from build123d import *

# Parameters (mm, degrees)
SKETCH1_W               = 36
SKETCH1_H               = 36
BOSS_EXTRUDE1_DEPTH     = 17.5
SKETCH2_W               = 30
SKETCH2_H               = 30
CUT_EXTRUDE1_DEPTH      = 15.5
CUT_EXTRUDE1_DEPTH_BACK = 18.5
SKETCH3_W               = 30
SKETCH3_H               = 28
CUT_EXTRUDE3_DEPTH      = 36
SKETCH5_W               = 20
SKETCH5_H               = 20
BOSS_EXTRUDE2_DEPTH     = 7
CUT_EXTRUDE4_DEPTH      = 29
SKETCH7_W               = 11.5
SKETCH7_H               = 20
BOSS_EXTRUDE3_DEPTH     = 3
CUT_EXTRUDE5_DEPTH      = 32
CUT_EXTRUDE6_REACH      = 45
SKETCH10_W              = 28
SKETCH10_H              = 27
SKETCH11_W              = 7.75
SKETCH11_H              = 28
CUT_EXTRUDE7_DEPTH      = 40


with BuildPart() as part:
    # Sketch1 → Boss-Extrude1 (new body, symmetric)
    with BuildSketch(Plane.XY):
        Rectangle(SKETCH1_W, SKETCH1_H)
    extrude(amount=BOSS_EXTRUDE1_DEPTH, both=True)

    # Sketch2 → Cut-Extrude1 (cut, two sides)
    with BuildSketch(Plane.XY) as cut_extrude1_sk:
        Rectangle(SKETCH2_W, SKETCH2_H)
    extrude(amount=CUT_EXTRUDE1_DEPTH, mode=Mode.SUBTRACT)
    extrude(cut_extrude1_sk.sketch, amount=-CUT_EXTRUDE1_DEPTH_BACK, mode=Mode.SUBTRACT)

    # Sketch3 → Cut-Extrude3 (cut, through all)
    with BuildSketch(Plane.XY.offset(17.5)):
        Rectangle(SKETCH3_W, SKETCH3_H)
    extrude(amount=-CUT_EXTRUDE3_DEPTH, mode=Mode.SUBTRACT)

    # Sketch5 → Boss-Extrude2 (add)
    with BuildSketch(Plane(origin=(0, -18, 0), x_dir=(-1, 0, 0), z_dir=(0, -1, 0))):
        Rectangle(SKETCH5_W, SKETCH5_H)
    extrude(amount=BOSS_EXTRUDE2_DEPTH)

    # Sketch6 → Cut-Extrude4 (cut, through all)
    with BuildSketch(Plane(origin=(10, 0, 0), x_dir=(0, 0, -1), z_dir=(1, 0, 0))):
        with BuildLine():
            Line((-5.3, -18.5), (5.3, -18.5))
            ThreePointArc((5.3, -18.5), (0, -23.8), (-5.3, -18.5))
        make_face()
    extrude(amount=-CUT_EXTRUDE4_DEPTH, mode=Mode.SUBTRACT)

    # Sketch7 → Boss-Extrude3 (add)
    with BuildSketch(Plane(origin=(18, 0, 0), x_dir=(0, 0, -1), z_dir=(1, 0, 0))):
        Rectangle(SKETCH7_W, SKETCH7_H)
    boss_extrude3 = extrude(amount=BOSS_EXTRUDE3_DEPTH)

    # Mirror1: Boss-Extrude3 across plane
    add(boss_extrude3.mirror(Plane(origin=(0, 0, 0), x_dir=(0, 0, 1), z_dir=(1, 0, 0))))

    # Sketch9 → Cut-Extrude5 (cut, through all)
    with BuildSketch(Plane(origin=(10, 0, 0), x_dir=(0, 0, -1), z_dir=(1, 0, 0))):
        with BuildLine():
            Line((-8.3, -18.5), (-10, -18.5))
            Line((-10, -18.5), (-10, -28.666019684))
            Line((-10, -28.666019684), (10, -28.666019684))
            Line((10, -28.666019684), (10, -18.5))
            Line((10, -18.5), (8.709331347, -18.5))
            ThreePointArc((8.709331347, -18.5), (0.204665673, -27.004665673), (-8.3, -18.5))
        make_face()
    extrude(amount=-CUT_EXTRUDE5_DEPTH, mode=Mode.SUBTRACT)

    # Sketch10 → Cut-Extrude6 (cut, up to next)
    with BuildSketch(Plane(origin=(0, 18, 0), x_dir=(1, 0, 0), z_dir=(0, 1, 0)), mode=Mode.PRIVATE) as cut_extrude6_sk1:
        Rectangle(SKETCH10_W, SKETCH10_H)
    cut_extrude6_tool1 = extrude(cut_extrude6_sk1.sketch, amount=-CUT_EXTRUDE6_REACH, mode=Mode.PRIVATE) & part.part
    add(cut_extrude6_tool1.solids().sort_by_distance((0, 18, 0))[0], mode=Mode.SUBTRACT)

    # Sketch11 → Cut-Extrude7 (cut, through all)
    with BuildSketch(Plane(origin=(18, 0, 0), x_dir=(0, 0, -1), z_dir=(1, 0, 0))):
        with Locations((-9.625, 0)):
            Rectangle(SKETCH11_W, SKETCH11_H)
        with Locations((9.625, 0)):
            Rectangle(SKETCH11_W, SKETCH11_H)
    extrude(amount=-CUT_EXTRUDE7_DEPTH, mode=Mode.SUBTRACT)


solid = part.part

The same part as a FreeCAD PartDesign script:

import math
import FreeCAD as App
import Part
import Sketcher


def add_polygon(sketch, points):
    """Adds a closed chain of lines whose ends are joined by coincident constraints."""
    first, n = sketch.GeometryCount, len(points)
    for a, b in zip(points, points[1:] + points[:1]):
        sketch.addGeometry(Part.LineSegment(App.Vector(*a, 0), App.Vector(*b, 0)), False)
    for i in range(n):
        sketch.addConstraint(Sketcher.Constraint("Coincident", first + i, 2, first + (i + 1) % n, 1))

doc = App.newDocument("Part")
body = doc.addObject("PartDesign::Body", "Body")

# Sketch on XY plane
sketch1 = body.newObject("Sketcher::SketchObject", "Sketch")
sketch1.AttachmentSupport = (doc.getObject("XY_Plane"), [""])
sketch1.MapMode = "FlatFace"
add_polygon(sketch1, [(-18, 18), (-18, -18), (18, -18), (18, 18)])  # lines 0-3
sketch1.addConstraint([
    Sketcher.Constraint("Vertical", 0),
    Sketcher.Constraint("Horizontal", 1),
    Sketcher.Constraint("Vertical", 2),
    Sketcher.Constraint("Horizontal", 3),
    Sketcher.Constraint("Symmetric", 0, 2, 2, 2, -1, 1),
    Sketcher.Constraint("Equal", 3, 0),
    Sketcher.Constraint("DistanceX", 1, 1, 1, 2, 36.0),
])
pad1 = body.newObject("PartDesign::Pad", "Pad")
pad1.Profile = sketch1
pad1.Length = 35
pad1.Midplane = True

# Sketch on XY plane
sketch2 = body.newObject("Sketcher::SketchObject", "Sketch001")
sketch2.AttachmentSupport = (doc.getObject("XY_Plane"), [""])
sketch2.MapMode = "FlatFace"
add_polygon(sketch2, [(-15, 15), (-15, -15), (15, -15), (15, 15)])  # lines 0-3
sketch2.addConstraint([
    Sketcher.Constraint("Vertical", 0),
    Sketcher.Constraint("Horizontal", 1),
    Sketcher.Constraint("Vertical", 2),
    Sketcher.Constraint("Horizontal", 3),
    Sketcher.Constraint("Symmetric", 0, 2, 2, 2, -1, 1),
    Sketcher.Constraint("Equal", 3, 0),
    Sketcher.Constraint("DistanceX", 1, 1, 1, 2, 30.0),
])
pocket1 = body.newObject("PartDesign::Pocket", "Pocket")
pocket1.Profile = sketch2
pocket1.Type = "TwoLengths"
pocket1.Length = 15.5
pocket1.Length2 = 18.5
pocket1.Reversed = True

# Sketch on XY plane
sketch3 = body.newObject("Sketcher::SketchObject", "Sketch002")
sketch3.AttachmentSupport = (doc.getObject("XY_Plane"), [""])
sketch3.MapMode = "FlatFace"
sketch3.AttachmentOffset = App.Placement(App.Vector(0, 0, 17.5), App.Rotation())
add_polygon(sketch3, [(-15, 14), (-15, -14), (15, -14), (15, 14)])  # lines 0-3
sketch3.addConstraint([
    Sketcher.Constraint("Vertical", 0),
    Sketcher.Constraint("Horizontal", 1),
    Sketcher.Constraint("Vertical", 2),
    Sketcher.Constraint("Horizontal", 3),
    Sketcher.Constraint("Symmetric", 0, 2, 2, 2, -1, 1),
    Sketcher.Constraint("DistanceX", 1, 1, 1, 2, 30.0),
    Sketcher.Constraint("DistanceY", 0, 2, 0, 1, 28.0),
])
pocket2 = body.newObject("PartDesign::Pocket", "Pocket001")
pocket2.Profile = sketch3
pocket2.Type = "ThroughAll"

# Sketch on XZ plane
sketch4 = body.newObject("Sketcher::SketchObject", "Sketch003")
sketch4.AttachmentSupport = (doc.getObject("XZ_Plane"), [""])
sketch4.MapMode = "FlatFace"
sketch4.AttachmentOffset = App.Placement(App.Vector(0, 0, 18), App.Rotation())
add_polygon(sketch4, [(10, -10), (10, 10), (-10, 10), (-10, -10)])  # lines 0-3
sketch4.addConstraint([
    Sketcher.Constraint("Vertical", 0),
    Sketcher.Constraint("Horizontal", 1),
    Sketcher.Constraint("Vertical", 2),
    Sketcher.Constraint("Horizontal", 3),
    Sketcher.Constraint("Symmetric", 0, 2, 2, 2, -1, 1),
    Sketcher.Constraint("Equal", 3, 0),
    Sketcher.Constraint("DistanceX", 1, 2, 1, 1, 20.0),
])
pad2 = body.newObject("PartDesign::Pad", "Pad001")
pad2.Profile = sketch4
pad2.Length = 7

# Sketch on YZ plane
sketch5 = body.newObject("Sketcher::SketchObject", "Sketch004")
sketch5.AttachmentSupport = (doc.getObject("YZ_Plane"), [""])
sketch5.MapMode = "FlatFace"
sketch5.AttachmentOffset = App.Placement(App.Vector(0, 0, 10), App.Rotation())
sketch5.addGeometry([
    Part.LineSegment(App.Vector(-18, -5, 0), App.Vector(-18, 5, 0)),
    Part.ArcOfCircle(Part.Circle(App.Vector(-18, 0, 0), App.Vector(0, 0, 1), 5), math.radians(90), math.radians(270)),
], False)
sketch5.addConstraint([
    Sketcher.Constraint("Coincident", 0, 1, 1, 2),
    Sketcher.Constraint("Coincident", 1, 1, 0, 2),
    Sketcher.Constraint("Vertical", 0),
    Sketcher.Constraint("PointOnObject", 1, 3, -1),
    Sketcher.Constraint("Vertical", 1, 3, 0, 1),
    Sketcher.Constraint("Radius", 1, 5.3),
    Sketcher.Constraint("DistanceX", 1, 3, -1, 1, 18.5),
])
pocket3 = body.newObject("PartDesign::Pocket", "Pocket002")
pocket3.Profile = sketch5
pocket3.Type = "ThroughAll"

# Sketch on YZ plane
sketch6 = body.newObject("Sketcher::SketchObject", "Sketch005")
sketch6.AttachmentSupport = (doc.getObject("YZ_Plane"), [""])
sketch6.MapMode = "FlatFace"
sketch6.AttachmentOffset = App.Placement(App.Vector(0, 0, 18), App.Rotation())
add_polygon(sketch6, [(10, 6), (-10, 6), (-10, -6), (10, -6)])  # lines 0-3
sketch6.addConstraint([
    Sketcher.Constraint("Horizontal", 0),
    Sketcher.Constraint("Vertical", 1),
    Sketcher.Constraint("Horizontal", 2),
    Sketcher.Constraint("Vertical", 3),
    Sketcher.Constraint("Symmetric", 0, 2, 2, 2, -1, 1),
    Sketcher.Constraint("DistanceX", 0, 2, 0, 1, 20.0),
    Sketcher.Constraint("DistanceY", 1, 2, 1, 1, 11.5),
])
pad3 = body.newObject("PartDesign::Pad", "Pad002")
pad3.Profile = sketch6
pad3.Length = 3
doc.recompute()

mirrored = body.newObject("PartDesign::Mirrored", "Mirrored")
mirrored.Originals = [pad3]
mirrored.MirrorPlane = (doc.getObject("YZ_Plane"), [""])
body.Tip = mirrored

# Sketch on YZ plane
sketch7 = body.newObject("Sketcher::SketchObject", "Sketch006")
sketch7.AttachmentSupport = (doc.getObject("YZ_Plane"), [""])
sketch7.MapMode = "FlatFace"
sketch7.AttachmentOffset = App.Placement(App.Vector(0, 0, 10), App.Rotation())
sketch7.addGeometry([
    Part.LineSegment(App.Vector(-18.5, 8.3, 0), App.Vector(-18.5, 10, 0)),  # 0
    Part.LineSegment(App.Vector(-18.5, 10, 0), App.Vector(-28.7, 10, 0)),  # 1
    Part.LineSegment(App.Vector(-28.7, 10, 0), App.Vector(-28.7, -10, 0)),  # 2
    Part.LineSegment(App.Vector(-28.7, -10, 0), App.Vector(-18.5, -10, 0)),  # 3
    Part.LineSegment(App.Vector(-18.5, -10, 0), App.Vector(-18.5, -8.7, 0)),  # 4
    Part.ArcOfCircle(Part.Circle(App.Vector(-18.5, -0.2, 0), App.Vector(0, 0, 1), 8.5), math.radians(90), math.radians(270)),  # 5
], False)
sketch7.addConstraint([
    Sketcher.Constraint("Coincident", 0, 2, 1, 1),
    Sketcher.Constraint("Coincident", 1, 2, 2, 1),
    Sketcher.Constraint("Coincident", 2, 2, 3, 1),
    Sketcher.Constraint("Coincident", 3, 2, 4, 1),
    Sketcher.Constraint("Coincident", 4, 2, 5, 2),
    Sketcher.Constraint("Coincident", 5, 1, 0, 1),
    Sketcher.Constraint("Vertical", 0),
    Sketcher.Constraint("Horizontal", 1),
    Sketcher.Constraint("Vertical", 2),
    Sketcher.Constraint("Horizontal", 3),
    Sketcher.Constraint("Vertical", 4),
    Sketcher.Constraint("Symmetric", 0, 2, 3, 2, -1),
    Sketcher.Constraint("Vertical", 5, 3, 0, 2),
    Sketcher.Constraint("DistanceY", 2, 2, 2, 1, 20.0),
    Sketcher.Constraint("DistanceY", 0, 1, 0, 2, 1.7),
    Sketcher.Constraint("DistanceX", 5, 3, -1, 1, 18.5),
    Sketcher.Constraint("Radius", 5, 8.504666),
    Sketcher.Constraint("DistanceX", 1, 2, 1, 1, 10.16602),
])
pocket4 = body.newObject("PartDesign::Pocket", "Pocket003")
pocket4.Profile = sketch7
pocket4.Type = "ThroughAll"

# Sketch on XZ plane
sketch8 = body.newObject("Sketcher::SketchObject", "Sketch007")
sketch8.AttachmentSupport = (doc.getObject("XZ_Plane"), [""])
sketch8.MapMode = "FlatFace"
sketch8.AttachmentOffset = App.Placement(App.Vector(0, 0, -18), App.Rotation())
add_polygon(sketch8, [(-14, -14), (-14, 14), (14, 14), (14, -14)])  # lines 0-3
sketch8.addConstraint([
    Sketcher.Constraint("Vertical", 0),
    Sketcher.Constraint("Horizontal", 1),
    Sketcher.Constraint("Vertical", 2),
    Sketcher.Constraint("Horizontal", 3),
    Sketcher.Constraint("Symmetric", 0, 2, 2, 2, -1, 1),
    Sketcher.Constraint("DistanceX", 1, 1, 1, 2, 28.0),
    Sketcher.Constraint("DistanceY", 0, 1, 0, 2, 27.0),
])
pocket5 = body.newObject("PartDesign::Pocket", "Pocket004")
pocket5.Profile = sketch8
pocket5.Type = "UpToFirst"
pocket5.Reversed = True

# Sketch on YZ plane
sketch9 = body.newObject("Sketcher::SketchObject", "Sketch008")
sketch9.AttachmentSupport = (doc.getObject("YZ_Plane"), [""])
sketch9.MapMode = "FlatFace"
sketch9.AttachmentOffset = App.Placement(App.Vector(0, 0, 18), App.Rotation())
add_polygon(sketch9, [(14, 14), (-14, 14), (-14, 6), (14, 6)])  # lines 0-3
add_polygon(sketch9, [(14, -6), (-14, -6), (-14, -14), (14, -14)])  # lines 4-7
sketch9.addConstraint([
    Sketcher.Constraint("Horizontal", 0),
    Sketcher.Constraint("Vertical", 1),
    Sketcher.Constraint("Horizontal", 2),
    Sketcher.Constraint("Vertical", 3),
    Sketcher.Constraint("Horizontal", 4),
    Sketcher.Constraint("Vertical", 5),
    Sketcher.Constraint("Horizontal", 6),
    Sketcher.Constraint("Vertical", 7),
    Sketcher.Constraint("Symmetric", 2, 2, 4, 2, -1, 1),
    Sketcher.Constraint("Symmetric", 0, 2, 6, 2, -1, 1),
    Sketcher.Constraint("Vertical", 1, 2, 4, 2),
    Sketcher.Constraint("DistanceX", 0, 2, 0, 1, 28.0),
    Sketcher.Constraint("DistanceY", 5, 2, 0, 2, 27.0),
    Sketcher.Constraint("DistanceY", 1, 2, 1, 1, 7.75),
])
pocket6 = body.newObject("PartDesign::Pocket", "Pocket005")
pocket6.Profile = sketch9
pocket6.Type = "ThroughAll"

doc.recompute()
